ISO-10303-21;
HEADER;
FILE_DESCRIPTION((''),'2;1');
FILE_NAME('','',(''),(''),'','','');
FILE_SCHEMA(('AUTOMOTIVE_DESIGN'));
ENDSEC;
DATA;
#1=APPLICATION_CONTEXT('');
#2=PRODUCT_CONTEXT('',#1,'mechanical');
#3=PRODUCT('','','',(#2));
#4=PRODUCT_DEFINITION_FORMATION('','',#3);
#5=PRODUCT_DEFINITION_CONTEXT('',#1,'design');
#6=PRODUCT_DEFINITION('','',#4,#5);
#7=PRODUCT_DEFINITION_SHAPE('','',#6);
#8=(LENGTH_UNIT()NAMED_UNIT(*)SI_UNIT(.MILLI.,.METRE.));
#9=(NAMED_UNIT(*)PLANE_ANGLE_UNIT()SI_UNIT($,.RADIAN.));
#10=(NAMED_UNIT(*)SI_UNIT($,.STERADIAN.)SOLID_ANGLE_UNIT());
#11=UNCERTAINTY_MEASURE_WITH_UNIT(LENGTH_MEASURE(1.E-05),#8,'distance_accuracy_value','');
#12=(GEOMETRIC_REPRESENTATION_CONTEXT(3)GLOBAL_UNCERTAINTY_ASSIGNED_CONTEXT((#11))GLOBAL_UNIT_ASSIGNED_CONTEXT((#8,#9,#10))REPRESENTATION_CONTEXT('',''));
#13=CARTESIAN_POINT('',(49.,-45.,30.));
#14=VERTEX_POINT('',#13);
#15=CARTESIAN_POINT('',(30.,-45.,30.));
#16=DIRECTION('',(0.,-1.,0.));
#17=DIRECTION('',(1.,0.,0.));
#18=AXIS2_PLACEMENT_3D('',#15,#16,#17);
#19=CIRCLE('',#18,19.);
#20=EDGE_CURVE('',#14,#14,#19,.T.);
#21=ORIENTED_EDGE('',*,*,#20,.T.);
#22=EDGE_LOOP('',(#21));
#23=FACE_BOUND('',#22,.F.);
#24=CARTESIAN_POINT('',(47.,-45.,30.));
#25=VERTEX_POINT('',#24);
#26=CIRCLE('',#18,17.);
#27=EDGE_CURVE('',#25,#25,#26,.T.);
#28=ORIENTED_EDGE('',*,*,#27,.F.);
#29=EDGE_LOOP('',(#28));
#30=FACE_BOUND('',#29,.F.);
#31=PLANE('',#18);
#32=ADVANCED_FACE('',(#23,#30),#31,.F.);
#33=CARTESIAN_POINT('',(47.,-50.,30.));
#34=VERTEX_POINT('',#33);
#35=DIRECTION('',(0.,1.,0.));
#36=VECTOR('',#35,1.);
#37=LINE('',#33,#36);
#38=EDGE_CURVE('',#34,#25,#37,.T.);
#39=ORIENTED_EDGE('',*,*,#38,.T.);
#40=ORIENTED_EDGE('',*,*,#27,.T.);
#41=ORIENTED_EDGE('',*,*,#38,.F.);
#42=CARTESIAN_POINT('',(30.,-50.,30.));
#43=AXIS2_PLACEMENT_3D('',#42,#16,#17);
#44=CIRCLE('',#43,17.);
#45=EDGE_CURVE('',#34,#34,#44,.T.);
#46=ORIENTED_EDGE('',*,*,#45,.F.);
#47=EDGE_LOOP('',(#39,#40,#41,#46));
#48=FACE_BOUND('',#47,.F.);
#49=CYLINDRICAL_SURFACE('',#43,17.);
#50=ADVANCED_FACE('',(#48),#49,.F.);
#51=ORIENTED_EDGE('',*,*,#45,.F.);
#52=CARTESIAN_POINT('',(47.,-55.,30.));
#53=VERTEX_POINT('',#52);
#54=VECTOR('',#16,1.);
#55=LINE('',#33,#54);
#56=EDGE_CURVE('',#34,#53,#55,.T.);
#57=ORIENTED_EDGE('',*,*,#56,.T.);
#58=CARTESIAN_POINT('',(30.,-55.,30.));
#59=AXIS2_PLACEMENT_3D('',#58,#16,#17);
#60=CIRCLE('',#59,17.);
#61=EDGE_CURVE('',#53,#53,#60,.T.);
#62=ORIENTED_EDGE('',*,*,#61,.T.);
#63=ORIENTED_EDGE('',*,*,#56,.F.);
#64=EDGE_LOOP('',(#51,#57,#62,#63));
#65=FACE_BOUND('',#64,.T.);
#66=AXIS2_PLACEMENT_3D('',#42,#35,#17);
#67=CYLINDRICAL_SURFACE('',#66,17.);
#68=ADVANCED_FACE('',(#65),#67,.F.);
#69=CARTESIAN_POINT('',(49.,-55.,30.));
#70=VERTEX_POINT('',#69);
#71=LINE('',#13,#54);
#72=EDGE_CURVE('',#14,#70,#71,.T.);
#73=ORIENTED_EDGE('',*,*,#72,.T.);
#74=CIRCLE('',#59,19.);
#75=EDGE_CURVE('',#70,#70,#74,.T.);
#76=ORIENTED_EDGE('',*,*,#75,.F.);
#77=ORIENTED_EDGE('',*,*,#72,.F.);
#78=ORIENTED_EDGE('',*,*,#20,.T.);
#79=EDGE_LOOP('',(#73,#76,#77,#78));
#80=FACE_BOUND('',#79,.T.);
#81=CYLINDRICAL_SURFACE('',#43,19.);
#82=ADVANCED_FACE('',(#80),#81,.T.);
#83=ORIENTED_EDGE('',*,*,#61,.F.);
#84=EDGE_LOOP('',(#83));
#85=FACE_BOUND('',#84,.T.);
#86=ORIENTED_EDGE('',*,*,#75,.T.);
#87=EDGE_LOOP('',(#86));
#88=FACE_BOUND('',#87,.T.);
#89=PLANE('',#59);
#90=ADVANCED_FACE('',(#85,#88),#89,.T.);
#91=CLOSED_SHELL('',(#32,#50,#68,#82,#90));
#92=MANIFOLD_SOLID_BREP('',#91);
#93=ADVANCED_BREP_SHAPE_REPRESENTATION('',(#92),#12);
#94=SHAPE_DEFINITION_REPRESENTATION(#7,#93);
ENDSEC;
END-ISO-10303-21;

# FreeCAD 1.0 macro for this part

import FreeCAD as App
import Part
import Sketcher
from FreeCAD import Vector
Q = App.Units.Quantity

doc = App.newDocument("Part")
body = doc.addObject("PartDesign::Body", "Body")

# Sketch on XZ plane
sketch1 = body.newObject("Sketcher::SketchObject", "Sketch")
sketch1.AttachmentSupport = (doc.getObject("XZ_Plane"), [""])
sketch1.MapMode = "FlatFace"
sketch1.AttachmentOffset = App.Placement(Vector(0, 0, 50), App.Rotation())
sketch1.addGeometry([
    Part.Circle(Vector(30, 30, 0), Vector(0, 0, 1), 19),
    Part.Circle(Vector(30, 30, 0), Vector(0, 0, 1), 17),
], False)
sketch1.addConstraint([
    Sketcher.Constraint("Coincident", 1, 3, 0, 3),
    Sketcher.Constraint("Diameter", 0, Q("38 mm")),
    Sketcher.Constraint("Diameter", 1, Q("34 mm")),
    Sketcher.Constraint("DistanceX", -1, 1, 0, 3, Q("30 mm")),
    Sketcher.Constraint("DistanceY", -1, 1, 0, 3, Q("30 mm")),
])
pad1 = body.newObject("PartDesign::Pad", "Pad")
pad1.Profile = sketch1
pad1.Type = "TwoLengths"
pad1.Length = 5
pad1.Length2 = 5

doc.recompute()
